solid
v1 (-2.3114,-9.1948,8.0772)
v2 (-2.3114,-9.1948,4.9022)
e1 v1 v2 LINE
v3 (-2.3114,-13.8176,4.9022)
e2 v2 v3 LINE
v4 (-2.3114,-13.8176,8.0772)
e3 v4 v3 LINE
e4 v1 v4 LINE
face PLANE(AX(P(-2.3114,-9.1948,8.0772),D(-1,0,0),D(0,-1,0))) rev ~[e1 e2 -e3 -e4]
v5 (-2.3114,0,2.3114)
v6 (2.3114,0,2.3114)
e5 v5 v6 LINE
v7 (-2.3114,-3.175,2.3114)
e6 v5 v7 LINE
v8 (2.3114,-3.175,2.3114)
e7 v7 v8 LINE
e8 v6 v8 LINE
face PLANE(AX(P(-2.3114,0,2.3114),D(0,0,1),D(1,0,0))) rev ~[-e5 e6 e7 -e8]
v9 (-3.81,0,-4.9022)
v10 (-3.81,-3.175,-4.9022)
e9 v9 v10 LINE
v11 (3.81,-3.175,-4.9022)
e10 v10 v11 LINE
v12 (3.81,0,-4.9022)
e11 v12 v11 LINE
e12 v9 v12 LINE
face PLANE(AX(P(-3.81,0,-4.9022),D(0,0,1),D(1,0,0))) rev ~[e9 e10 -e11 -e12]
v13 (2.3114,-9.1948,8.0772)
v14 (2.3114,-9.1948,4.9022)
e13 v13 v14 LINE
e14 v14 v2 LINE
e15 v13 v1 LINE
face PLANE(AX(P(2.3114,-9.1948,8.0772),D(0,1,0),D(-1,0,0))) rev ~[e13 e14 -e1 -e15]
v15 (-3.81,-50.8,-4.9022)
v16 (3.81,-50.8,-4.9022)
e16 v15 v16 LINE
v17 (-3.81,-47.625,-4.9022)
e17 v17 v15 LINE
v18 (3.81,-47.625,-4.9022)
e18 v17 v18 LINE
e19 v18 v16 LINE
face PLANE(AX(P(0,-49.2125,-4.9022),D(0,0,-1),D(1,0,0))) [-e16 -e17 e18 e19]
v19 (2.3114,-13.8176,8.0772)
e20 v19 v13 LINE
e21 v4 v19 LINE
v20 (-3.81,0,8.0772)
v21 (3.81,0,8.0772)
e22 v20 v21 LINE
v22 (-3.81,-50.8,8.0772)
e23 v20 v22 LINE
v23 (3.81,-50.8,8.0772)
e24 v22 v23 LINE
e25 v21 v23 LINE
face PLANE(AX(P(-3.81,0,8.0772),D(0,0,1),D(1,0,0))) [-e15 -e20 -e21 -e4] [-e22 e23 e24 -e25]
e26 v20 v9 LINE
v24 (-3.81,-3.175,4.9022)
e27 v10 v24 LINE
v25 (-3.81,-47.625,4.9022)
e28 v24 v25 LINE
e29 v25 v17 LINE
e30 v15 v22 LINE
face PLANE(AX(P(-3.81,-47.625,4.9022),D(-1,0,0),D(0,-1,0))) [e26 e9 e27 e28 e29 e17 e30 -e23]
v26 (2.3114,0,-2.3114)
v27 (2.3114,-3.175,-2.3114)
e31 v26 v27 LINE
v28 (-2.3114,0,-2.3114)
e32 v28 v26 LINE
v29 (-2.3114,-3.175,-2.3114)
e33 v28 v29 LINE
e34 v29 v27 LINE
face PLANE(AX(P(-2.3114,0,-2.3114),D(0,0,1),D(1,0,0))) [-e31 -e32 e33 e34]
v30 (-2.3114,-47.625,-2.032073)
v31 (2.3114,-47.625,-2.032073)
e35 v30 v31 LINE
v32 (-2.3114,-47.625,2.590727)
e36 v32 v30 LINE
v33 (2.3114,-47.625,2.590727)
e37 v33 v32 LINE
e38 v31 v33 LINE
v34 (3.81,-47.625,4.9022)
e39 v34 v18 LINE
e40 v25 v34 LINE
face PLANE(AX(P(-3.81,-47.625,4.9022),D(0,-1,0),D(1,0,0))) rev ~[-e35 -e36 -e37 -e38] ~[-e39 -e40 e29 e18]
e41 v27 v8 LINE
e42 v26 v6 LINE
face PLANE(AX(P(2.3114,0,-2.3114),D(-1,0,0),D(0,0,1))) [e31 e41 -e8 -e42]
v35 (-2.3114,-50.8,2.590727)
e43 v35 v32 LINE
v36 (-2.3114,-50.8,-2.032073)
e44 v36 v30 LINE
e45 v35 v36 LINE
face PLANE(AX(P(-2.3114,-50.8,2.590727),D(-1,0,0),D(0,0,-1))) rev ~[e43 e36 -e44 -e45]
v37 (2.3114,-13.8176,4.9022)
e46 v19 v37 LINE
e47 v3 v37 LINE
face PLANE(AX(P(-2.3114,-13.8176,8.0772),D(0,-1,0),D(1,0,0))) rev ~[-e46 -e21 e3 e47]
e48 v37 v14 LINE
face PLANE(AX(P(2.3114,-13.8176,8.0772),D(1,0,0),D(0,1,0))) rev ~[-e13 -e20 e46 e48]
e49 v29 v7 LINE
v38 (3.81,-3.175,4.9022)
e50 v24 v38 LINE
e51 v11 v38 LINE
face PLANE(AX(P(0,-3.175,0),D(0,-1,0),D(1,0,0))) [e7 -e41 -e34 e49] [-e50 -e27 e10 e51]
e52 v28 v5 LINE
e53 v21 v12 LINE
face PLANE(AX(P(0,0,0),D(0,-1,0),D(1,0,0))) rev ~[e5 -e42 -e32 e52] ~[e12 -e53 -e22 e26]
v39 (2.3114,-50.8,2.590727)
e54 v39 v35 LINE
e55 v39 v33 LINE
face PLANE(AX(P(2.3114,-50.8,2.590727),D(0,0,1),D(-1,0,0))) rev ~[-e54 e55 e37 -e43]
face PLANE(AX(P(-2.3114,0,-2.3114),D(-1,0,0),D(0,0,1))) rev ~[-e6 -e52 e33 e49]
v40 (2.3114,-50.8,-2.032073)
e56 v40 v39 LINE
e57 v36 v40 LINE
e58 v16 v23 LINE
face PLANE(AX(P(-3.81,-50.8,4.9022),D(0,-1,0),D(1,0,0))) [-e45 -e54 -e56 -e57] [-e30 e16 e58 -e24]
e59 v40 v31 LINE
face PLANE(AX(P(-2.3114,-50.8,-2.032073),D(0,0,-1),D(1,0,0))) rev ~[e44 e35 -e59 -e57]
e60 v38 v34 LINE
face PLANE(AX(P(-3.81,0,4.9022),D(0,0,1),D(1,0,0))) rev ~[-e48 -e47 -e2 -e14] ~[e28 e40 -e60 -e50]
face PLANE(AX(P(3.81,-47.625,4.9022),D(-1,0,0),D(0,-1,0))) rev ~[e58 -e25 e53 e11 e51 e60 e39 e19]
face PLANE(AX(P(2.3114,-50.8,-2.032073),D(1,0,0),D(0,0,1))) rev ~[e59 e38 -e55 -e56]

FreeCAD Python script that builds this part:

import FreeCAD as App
import Part
import Sketcher

V = App.Vector
Q = App.Units.Quantity


def add_polygon(sketch, points):
    """Adds a closed chain of lines whose ends are joined by coincident constraints."""
    first, n = sketch.GeometryCount, len(points)
    for a, b in zip(points, points[1:] + points[:1]):
        sketch.addGeometry(Part.LineSegment(App.Vector(*a, 0), App.Vector(*b, 0)), False)
    for i in range(n):
        sketch.addConstraint(Sketcher.Constraint("Coincident", first + i, 2, first + (i + 1) % n, 1))

doc = App.newDocument("Part")
params = doc.addObject("Spreadsheet::Sheet", "Params")
for row, (alias, value) in enumerate([
    ("sketch1_width", "0.3 in"),
    ("sketch1_height", "0.125 in"),
    ("pad1_length", "2 in"),
    ("sketch2_width", "0.3 in"),
    ("sketch2_width2", "0.182 in"),
    ("sketch2_height", "0.386 in"),
    ("pad2_length", "0.125 in"),
    ("sketch3_width", "0.3 in"),
    ("sketch3_height", "0.125 in"),
    ("pad3_length", "0.386 in"),
    ("sketch4_width", "0.182 in"),
    ("pocket1_length", "1 in"),
    ("sketch5_width", "0.182 in"),
    ("pocket2_length", "1 in"),
], start=1):
    params.set(f"A{row}", alias)
    params.set(f"B{row}", "=" + value)
    params.setAlias(f"B{row}", alias)

body = doc.addObject("PartDesign::Body", "Body")

# Sketch on XZ plane
sketch1 = body.newObject("Sketcher::SketchObject", "Sketch")
sketch1.AttachmentSupport = (doc.getObject("XZ_Plane"), [""])
sketch1.MapMode = "FlatFace"
add_polygon(sketch1, [(-3.8, 8.1), (-3.8, 4.9), (3.8, 4.9), (3.8, 8.1)])  # lines 0-3
sketch1.addConstraint([
    Sketcher.Constraint("Vertical", 0),
    Sketcher.Constraint("Horizontal", 1),
    Sketcher.Constraint("Vertical", 2),
    Sketcher.Constraint("Horizontal", 3),
    Sketcher.Constraint("DistanceX", 1, 1, 1, 2, Q("0.3 in")),
    Sketcher.Constraint("DistanceY", 0, 2, 0, 1, Q("0.125 in")),
    Sketcher.Constraint("DistanceX", 0, 2, -1, 1, Q("0.15 in")),
    Sketcher.Constraint("DistanceY", -1, 1, 0, 2, Q("0.193 in")),
])
sketch1.setExpression("Constraints[8]", "Params.sketch1_width")
sketch1.setExpression("Constraints[9]", "Params.sketch1_height")
pad1 = body.newObject("PartDesign::Pad", "Pad")
pad1.Profile = sketch1
pad1.setExpression("Length", "Params.pad1_length")

# Sketch on XZ plane
sketch2 = body.newObject("Sketcher::SketchObject", "Sketch001")
sketch2.AttachmentSupport = (doc.getObject("XZ_Plane"), [""])
sketch2.MapMode = "FlatFace"
add_polygon(sketch2, [(-3.8, 4.9), (-3.8, -4.9), (3.8, -4.9), (3.8, 4.9)])  # lines 0-3
add_polygon(sketch2, [(2.3, -2.3), (-2.3, -2.3), (-2.3, 2.3), (2.3, 2.3)])  # lines 4-7
sketch2.addConstraint([
    Sketcher.Constraint("Vertical", 0),
    Sketcher.Constraint("Horizontal", 1),
    Sketcher.Constraint("Vertical", 2),
    Sketcher.Constraint("Horizontal", 3),
    Sketcher.Constraint("Horizontal", 4),
    Sketcher.Constraint("Vertical", 5),
    Sketcher.Constraint("Horizontal", 6),
    Sketcher.Constraint("Vertical", 7),
    Sketcher.Constraint("Symmetric", 0, 2, 2, 2, -1, 1),
    Sketcher.Constraint("Symmetric", 4, 2, 6, 2, -1, 1),
    Sketcher.Constraint("Equal", 6, 5),
    Sketcher.Constraint("DistanceX", 1, 1, 1, 2, Q("0.3 in")),
    Sketcher.Constraint("DistanceX", 4, 2, 4, 1, Q("0.182 in")),
    Sketcher.Constraint("DistanceY", 0, 2, 0, 1, Q("0.386 in")),
])
sketch2.setExpression("Constraints[19]", "Params.sketch2_width")
sketch2.setExpression("Constraints[20]", "Params.sketch2_width2")
sketch2.setExpression("Constraints[21]", "Params.sketch2_height")
pad2 = body.newObject("PartDesign::Pad", "Pad001")
pad2.Profile = sketch2
pad2.setExpression("Length", "Params.pad2_length")

# Sketch on XY plane
sketch3 = body.newObject("Sketcher::SketchObject", "Sketch002")
sketch3.AttachmentSupport = (doc.getObject("XY_Plane"), [""])
sketch3.MapMode = "FlatFace"
sketch3.AttachmentOffset = App.Placement(V(0, 0, 0.193 * 25.4), App.Rotation())
add_polygon(sketch3, [(-3.8, -50.8), (-3.8, -47.6), (3.8, -47.6), (3.8, -50.8)])  # lines 0-3
sketch3.addConstraint([
    Sketcher.Constraint("Vertical", 0),
    Sketcher.Constraint("Horizontal", 1),
    Sketcher.Constraint("Vertical", 2),
    Sketcher.Constraint("Horizontal", 3),
    Sketcher.Constraint("DistanceX", 1, 1, 1, 2, Q("0.3 in")),
    Sketcher.Constraint("DistanceY", 2, 2, -1, 1, Q("2 in")),
    Sketcher.Constraint("DistanceY", 0, 1, 0, 2, Q("0.125 in")),
    Sketcher.Constraint("DistanceX", 0, 2, -1, 1, Q("0.15 in")),
])
sketch3.setExpression("Constraints[8]", "Params.sketch3_width")
sketch3.setExpression("Constraints[10]", "Params.sketch3_height")
pad3 = body.newObject("PartDesign::Pad", "Pad002")
pad3.Profile = sketch3
pad3.setExpression("Length", "Params.pad3_length")
pad3.Reversed = True

# Sketch on XZ plane
sketch4 = body.newObject("Sketcher::SketchObject", "Sketch003")
sketch4.AttachmentSupport = (doc.getObject("XZ_Plane"), [""])
sketch4.MapMode = "FlatFace"
sketch4.AttachmentOffset = App.Placement(V(0, 0, 2 * 25.4), App.Rotation())
add_polygon(sketch4, [(2.3, -2), (2.3, 2.6), (-2.3, 2.6), (-2.3, -2)])  # lines 0-3
sketch4.addConstraint([
    Sketcher.Constraint("Vertical", 0),
    Sketcher.Constraint("Horizontal", 1),
    Sketcher.Constraint("Vertical", 2),
    Sketcher.Constraint("Horizontal", 3),
    Sketcher.Constraint("Equal", 3, 0),
    Sketcher.Constraint("DistanceX", 1, 2, 1, 1, Q("0.182 in")),
    Sketcher.Constraint("DistanceX", -1, 1, 0, 2, Q("0.091 in")),
    Sketcher.Constraint("DistanceY", -1, 1, 0, 2, Q("2.590727 mm")),
])
sketch4.setExpression("Constraints[9]", "Params.sketch4_width")
pocket1 = body.newObject("PartDesign::Pocket", "Pocket")
pocket1.Profile = sketch4
pocket1.setExpression("Length", "Params.pocket1_length")

# Sketch on XY plane
sketch5 = body.newObject("Sketcher::SketchObject", "Sketch004")
sketch5.AttachmentSupport = (doc.getObject("XY_Plane"), [""])
sketch5.MapMode = "FlatFace"
sketch5.AttachmentOffset = App.Placement(V(0, 0, 0.318 * 25.4), App.Rotation())
add_polygon(sketch5, [(2.3, -9.2), (-2.3, -9.2), (-2.3, -13.8), (2.3, -13.8)])  # lines 0-3
sketch5.addConstraint([
    Sketcher.Constraint("Horizontal", 0),
    Sketcher.Constraint("Vertical", 1),
    Sketcher.Constraint("Horizontal", 2),
    Sketcher.Constraint("Vertical", 3),
    Sketcher.Constraint("Equal", 2, 1),
    Sketcher.Constraint("DistanceX", 0, 2, 0, 1, Q("0.182 in")),
    Sketcher.Constraint("DistanceX", 0, 2, -1, 1, Q("0.091 in")),
    Sketcher.Constraint("DistanceY", 0, 2, -1, 1, Q("0.362 in")),
])
sketch5.setExpression("Constraints[9]", "Params.sketch5_width")
pocket2 = body.newObject("PartDesign::Pocket", "Pocket001")
pocket2.Profile = sketch5
pocket2.setExpression("Length", "Params.pocket2_length")

doc.recompute()
